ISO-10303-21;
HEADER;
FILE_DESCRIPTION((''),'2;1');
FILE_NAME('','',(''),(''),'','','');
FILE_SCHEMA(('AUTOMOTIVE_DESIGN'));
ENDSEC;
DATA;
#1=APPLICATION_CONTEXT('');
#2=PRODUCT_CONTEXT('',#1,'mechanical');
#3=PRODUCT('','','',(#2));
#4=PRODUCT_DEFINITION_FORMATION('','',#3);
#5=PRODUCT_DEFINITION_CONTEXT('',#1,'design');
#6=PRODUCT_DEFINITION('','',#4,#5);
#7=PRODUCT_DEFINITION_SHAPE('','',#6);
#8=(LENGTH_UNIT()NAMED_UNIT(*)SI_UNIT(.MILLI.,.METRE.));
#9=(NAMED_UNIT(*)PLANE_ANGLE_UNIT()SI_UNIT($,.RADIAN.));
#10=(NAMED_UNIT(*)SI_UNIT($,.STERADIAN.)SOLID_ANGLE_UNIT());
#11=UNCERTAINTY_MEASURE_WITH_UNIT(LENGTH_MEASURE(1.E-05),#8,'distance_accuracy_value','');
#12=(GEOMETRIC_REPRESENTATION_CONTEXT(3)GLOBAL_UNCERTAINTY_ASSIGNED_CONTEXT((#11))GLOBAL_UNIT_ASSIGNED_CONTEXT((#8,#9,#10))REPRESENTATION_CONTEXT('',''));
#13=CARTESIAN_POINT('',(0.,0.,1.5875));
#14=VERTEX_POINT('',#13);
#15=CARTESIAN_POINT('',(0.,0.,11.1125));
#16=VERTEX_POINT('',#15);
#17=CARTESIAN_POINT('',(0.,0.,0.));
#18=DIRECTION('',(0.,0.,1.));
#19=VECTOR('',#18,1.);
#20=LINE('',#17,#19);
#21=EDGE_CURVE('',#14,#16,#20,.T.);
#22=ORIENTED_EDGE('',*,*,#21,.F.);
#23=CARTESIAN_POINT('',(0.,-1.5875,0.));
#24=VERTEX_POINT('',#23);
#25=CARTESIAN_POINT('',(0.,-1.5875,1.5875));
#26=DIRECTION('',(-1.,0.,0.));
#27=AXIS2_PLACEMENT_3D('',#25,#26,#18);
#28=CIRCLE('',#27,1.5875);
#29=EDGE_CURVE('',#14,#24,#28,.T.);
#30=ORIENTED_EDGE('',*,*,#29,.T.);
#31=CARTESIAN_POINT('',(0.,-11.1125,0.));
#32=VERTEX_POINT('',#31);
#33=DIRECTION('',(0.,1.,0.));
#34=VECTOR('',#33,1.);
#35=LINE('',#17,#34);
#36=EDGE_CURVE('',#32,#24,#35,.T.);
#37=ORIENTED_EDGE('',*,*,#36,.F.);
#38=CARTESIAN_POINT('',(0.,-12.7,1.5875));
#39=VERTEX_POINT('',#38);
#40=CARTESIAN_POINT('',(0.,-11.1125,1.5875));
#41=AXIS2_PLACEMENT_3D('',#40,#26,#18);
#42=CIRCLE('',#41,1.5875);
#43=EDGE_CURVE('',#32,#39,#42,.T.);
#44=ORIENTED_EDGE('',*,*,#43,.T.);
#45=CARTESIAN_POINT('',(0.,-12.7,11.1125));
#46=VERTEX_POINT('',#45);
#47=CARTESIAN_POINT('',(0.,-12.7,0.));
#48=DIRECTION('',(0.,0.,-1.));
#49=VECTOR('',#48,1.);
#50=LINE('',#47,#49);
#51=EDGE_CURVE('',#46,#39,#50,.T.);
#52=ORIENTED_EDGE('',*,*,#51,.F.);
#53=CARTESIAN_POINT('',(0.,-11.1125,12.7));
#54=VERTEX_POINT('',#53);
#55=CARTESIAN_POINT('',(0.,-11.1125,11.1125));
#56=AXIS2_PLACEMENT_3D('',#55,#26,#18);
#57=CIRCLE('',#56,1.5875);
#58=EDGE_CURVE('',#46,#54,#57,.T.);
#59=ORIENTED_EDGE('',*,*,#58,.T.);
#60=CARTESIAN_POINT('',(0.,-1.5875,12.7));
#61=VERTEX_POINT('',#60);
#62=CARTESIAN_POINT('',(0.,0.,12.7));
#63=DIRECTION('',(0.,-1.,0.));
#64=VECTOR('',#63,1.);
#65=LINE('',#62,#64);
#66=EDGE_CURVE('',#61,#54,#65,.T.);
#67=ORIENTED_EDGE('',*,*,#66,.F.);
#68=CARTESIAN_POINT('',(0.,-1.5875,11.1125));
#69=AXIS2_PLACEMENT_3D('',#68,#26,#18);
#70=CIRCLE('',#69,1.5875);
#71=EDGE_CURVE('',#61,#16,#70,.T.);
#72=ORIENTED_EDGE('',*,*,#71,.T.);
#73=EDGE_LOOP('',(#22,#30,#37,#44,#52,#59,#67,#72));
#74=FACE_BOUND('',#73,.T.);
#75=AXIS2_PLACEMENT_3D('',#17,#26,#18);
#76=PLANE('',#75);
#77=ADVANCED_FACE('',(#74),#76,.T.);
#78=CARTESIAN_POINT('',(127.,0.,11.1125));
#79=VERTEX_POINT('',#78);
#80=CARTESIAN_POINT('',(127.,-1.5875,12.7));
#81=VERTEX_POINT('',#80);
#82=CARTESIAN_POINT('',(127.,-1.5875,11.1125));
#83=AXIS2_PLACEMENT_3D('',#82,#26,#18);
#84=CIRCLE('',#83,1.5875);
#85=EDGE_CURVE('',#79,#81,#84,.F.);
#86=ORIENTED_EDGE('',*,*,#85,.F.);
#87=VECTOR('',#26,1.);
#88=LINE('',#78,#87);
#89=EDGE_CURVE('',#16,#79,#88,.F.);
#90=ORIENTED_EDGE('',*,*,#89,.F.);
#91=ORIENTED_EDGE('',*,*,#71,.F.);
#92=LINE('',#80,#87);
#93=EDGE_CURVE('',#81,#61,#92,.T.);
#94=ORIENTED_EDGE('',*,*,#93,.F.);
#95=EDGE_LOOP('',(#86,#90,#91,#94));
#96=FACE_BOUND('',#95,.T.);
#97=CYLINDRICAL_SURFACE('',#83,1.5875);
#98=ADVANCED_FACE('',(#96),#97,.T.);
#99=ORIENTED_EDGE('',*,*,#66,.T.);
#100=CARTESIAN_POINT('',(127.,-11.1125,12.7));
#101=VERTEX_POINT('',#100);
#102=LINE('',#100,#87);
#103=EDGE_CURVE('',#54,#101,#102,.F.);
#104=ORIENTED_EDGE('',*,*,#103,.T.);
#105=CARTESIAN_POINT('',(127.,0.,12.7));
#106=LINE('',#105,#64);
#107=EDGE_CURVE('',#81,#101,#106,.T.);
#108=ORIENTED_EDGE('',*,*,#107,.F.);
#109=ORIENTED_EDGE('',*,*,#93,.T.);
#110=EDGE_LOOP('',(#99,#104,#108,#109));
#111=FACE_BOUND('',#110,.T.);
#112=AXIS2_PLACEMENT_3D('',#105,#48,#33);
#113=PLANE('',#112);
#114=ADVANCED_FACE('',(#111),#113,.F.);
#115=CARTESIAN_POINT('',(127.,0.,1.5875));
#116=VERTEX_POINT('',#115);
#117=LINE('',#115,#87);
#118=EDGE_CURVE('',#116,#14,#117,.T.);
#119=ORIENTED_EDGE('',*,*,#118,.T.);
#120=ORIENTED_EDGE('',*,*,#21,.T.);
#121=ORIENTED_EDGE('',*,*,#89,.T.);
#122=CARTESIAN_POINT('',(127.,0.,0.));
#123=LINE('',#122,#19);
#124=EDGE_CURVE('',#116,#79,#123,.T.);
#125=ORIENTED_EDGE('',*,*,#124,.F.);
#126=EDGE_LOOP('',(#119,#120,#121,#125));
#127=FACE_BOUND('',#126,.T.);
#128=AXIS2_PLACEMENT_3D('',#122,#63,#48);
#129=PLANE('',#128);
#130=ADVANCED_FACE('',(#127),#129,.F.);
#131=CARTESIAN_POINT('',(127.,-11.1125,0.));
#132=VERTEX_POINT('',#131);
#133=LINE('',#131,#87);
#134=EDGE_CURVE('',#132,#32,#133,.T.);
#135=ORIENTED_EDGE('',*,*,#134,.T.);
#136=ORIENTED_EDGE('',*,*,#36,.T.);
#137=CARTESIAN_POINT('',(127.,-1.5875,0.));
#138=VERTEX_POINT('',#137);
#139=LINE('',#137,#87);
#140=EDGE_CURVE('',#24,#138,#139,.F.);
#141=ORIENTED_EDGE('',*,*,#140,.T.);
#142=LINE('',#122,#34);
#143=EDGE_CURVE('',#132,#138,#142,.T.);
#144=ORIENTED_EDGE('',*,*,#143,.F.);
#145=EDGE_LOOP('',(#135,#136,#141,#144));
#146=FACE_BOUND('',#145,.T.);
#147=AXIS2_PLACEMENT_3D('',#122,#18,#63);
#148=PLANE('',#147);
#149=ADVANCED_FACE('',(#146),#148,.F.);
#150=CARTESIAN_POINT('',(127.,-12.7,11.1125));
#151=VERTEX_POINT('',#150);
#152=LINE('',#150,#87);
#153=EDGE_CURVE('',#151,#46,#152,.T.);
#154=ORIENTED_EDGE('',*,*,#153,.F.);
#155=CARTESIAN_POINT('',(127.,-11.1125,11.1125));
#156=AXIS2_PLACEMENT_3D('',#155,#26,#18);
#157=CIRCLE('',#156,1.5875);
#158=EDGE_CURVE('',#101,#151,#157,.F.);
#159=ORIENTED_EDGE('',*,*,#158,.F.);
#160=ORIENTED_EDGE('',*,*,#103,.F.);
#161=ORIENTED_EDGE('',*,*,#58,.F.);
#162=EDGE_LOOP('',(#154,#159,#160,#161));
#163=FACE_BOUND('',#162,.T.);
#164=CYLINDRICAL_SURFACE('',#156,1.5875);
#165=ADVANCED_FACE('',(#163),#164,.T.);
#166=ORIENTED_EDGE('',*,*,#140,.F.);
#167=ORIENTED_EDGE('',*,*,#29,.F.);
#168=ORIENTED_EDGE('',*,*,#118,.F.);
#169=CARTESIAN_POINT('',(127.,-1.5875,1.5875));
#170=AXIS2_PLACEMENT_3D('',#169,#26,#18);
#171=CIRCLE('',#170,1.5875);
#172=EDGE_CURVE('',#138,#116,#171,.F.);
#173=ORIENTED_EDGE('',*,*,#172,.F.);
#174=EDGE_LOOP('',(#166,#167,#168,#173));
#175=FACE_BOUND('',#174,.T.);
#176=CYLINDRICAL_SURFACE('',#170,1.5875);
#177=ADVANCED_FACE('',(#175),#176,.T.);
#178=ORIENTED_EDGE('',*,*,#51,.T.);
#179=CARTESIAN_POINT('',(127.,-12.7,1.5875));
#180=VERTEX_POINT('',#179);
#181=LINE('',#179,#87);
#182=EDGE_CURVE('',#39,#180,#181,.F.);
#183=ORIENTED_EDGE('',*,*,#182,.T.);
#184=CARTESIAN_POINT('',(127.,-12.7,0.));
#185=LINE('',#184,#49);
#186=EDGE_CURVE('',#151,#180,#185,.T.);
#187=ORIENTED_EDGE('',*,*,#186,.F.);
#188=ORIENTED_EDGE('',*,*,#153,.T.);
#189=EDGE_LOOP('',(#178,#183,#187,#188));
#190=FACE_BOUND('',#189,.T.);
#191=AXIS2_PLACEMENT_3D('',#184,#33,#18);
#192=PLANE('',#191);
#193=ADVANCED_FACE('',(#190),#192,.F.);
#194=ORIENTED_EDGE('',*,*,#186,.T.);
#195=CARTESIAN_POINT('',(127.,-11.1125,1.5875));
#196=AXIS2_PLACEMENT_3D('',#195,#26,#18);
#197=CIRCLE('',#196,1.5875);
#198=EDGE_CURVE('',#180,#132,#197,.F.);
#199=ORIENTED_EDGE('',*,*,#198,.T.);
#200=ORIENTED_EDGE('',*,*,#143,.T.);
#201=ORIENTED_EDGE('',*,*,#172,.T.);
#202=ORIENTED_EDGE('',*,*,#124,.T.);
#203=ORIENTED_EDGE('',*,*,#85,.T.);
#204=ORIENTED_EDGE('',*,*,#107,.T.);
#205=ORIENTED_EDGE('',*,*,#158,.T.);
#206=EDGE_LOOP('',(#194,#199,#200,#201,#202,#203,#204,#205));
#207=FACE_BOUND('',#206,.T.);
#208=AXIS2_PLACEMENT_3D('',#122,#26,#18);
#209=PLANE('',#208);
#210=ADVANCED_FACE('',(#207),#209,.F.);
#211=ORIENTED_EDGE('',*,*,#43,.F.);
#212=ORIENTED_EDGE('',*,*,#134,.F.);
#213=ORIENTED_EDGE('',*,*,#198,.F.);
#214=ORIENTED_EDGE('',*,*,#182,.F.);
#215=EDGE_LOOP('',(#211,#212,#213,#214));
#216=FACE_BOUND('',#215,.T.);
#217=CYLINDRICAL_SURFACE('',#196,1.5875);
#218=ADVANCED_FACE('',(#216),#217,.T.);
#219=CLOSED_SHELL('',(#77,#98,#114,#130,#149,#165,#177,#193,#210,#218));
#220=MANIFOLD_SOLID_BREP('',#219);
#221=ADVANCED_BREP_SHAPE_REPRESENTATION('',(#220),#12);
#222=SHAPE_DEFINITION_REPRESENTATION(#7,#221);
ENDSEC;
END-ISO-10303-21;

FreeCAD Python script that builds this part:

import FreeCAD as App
import Part
import Sketcher

V = App.Vector
Q = App.Units.Quantity


def edges_at(feature, points):
    """Names of the edges that pass closest to the given points."""
    edges = feature.Shape.Edges
    near = lambda p: min(range(len(edges)), key=lambda i: edges[i].distToShape(Part.Vertex(*p))[0])
    return sorted({f"Edge{near(p) + 1}" for p in points})


def add_polygon(sketch, points):
    """Adds a closed chain of lines whose ends are joined by coincident constraints."""
    first, n = sketch.GeometryCount, len(points)
    for a, b in zip(points, points[1:] + points[:1]):
        sketch.addGeometry(Part.LineSegment(App.Vector(*a, 0), App.Vector(*b, 0)), False)
    for i in range(n):
        sketch.addConstraint(Sketcher.Constraint("Coincident", first + i, 2, first + (i + 1) % n, 1))

doc = App.newDocument("Part")
body = doc.addObject("PartDesign::Body", "Body")

sketch1 = doc.addObject("Sketcher::SketchObject", "Sketch")
body.addObject(sketch1)
sketch1.AttachmentSupport = (doc.YZ_Plane, [""])
sketch1.MapMode = "FlatFace"
add_polygon(sketch1, [(0, 13), (-13, 13), (-13, 0), (0, 0)])
sketch1.addConstraint([
    Sketcher.Constraint("Horizontal", 0),
    Sketcher.Constraint("Vertical", 1),
    Sketcher.Constraint("Horizontal", 2),
    Sketcher.Constraint("Vertical", 3),
    Sketcher.Constraint("Coincident", 2, 2, -1, 1),
    Sketcher.Constraint("Equal", 2, 1),
    Sketcher.Constraint("DistanceX", 0, 2, 0, 1, Q("0.5 in")),
])
pad1 = doc.addObject("PartDesign::Pad", "Pad")
body.addObject(pad1)
pad1.Profile = sketch1
pad1.Length = Q("5 in")
doc.recompute()

fillet = doc.addObject("PartDesign::Fillet", "Fillet")
body.addObject(fillet)
fillet.Base = (pad1, edges_at(pad1, [
    (63.5, -12.7, 0),
    (63.5, -12.7, 12.7),
    (63.5, 0, 12.7),
    (63.5, 0, 0),
]))
fillet.Radius = Q("0.0625 in")

doc.recompute()
